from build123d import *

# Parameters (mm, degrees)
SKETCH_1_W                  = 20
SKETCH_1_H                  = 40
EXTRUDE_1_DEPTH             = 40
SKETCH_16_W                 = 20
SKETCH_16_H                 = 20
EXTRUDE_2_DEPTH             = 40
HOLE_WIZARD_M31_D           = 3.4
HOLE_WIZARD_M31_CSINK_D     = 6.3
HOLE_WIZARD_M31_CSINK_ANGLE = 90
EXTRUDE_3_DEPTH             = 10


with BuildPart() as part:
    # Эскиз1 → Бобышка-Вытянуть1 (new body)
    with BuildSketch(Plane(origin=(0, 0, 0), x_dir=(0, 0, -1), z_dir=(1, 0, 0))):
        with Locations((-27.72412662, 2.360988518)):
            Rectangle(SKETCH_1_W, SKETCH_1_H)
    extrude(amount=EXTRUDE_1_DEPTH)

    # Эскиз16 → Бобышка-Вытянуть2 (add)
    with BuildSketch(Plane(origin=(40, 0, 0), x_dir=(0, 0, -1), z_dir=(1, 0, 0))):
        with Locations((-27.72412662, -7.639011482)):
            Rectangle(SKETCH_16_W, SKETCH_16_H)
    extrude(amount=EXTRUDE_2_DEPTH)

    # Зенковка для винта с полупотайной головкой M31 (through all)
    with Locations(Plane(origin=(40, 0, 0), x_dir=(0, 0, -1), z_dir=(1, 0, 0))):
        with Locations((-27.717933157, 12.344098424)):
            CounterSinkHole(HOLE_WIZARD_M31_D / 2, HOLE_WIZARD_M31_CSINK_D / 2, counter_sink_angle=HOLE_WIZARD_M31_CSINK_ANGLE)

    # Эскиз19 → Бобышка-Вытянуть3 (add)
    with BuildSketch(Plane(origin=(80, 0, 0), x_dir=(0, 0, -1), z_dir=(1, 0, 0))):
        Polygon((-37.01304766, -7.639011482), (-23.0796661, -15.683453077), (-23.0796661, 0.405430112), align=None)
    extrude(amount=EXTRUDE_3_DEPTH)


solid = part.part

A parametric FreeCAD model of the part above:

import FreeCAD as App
import Part
import Sketcher
Q = App.Units.Quantity


def add_polygon(sketch, points):
    """Adds a closed chain of lines whose ends are joined by coincident constraints."""
    first, n = sketch.GeometryCount, len(points)
    for a, b in zip(points, points[1:] + points[:1]):
        sketch.addGeometry(Part.LineSegment(App.Vector(*a, 0), App.Vector(*b, 0)), False)
    for i in range(n):
        sketch.addConstraint(Sketcher.Constraint("Coincident", first + i, 2, first + (i + 1) % n, 1))

doc = App.newDocument("Part")
body = doc.addObject("PartDesign::Body", "Body")

# Sketch on YZ plane
sketch1 = body.newObject("Sketcher::SketchObject", "Sketch")
sketch1.AttachmentSupport = (doc.getObject("YZ_Plane"), [""])
sketch1.MapMode = "FlatFace"
add_polygon(sketch1, [(22, 38), (-18, 38), (-18, 18), (22, 18)])  # lines 0-3
sketch1.addConstraint([
    Sketcher.Constraint("Horizontal", 0),
    Sketcher.Constraint("Vertical", 1),
    Sketcher.Constraint("Horizontal", 2),
    Sketcher.Constraint("Vertical", 3),
    Sketcher.Constraint("DistanceX", 0, 2, 0, 1, Q("40 mm")),
    Sketcher.Constraint("DistanceY", 1, 2, 1, 1, Q("20 mm")),
    Sketcher.Constraint("DistanceX", 0, 2, -1, 1, Q("17.639011 mm")),
    Sketcher.Constraint("DistanceY", -1, 1, 0, 2, Q("37.724127 mm")),
])
pad1 = body.newObject("PartDesign::Pad", "Pad")
pad1.Profile = sketch1
pad1.Length = 40

# Sketch on YZ plane
sketch2 = body.newObject("Sketcher::SketchObject", "Sketch001")
sketch2.AttachmentSupport = (doc.getObject("YZ_Plane"), [""])
sketch2.MapMode = "FlatFace"
sketch2.AttachmentOffset = App.Placement(App.Vector(0, 0, 40), App.Rotation())
add_polygon(sketch2, [(2, 38), (-18, 38), (-18, 18), (2, 18)])  # lines 0-3
sketch2.addConstraint([
    Sketcher.Constraint("Horizontal", 0),
    Sketcher.Constraint("Vertical", 1),
    Sketcher.Constraint("Horizontal", 2),
    Sketcher.Constraint("Vertical", 3),
    Sketcher.Constraint("Equal", 2, 1),
    Sketcher.Constraint("DistanceX", 0, 2, 0, 1, Q("20 mm")),
    Sketcher.Constraint("DistanceX", 0, 2, -1, 1, Q("17.639011 mm")),
    Sketcher.Constraint("DistanceY", -1, 1, 0, 2, Q("37.724127 mm")),
])
pad2 = body.newObject("PartDesign::Pad", "Pad001")
pad2.Profile = sketch2
pad2.Length = 40

# Sketch on YZ plane
sketch3 = body.newObject("Sketcher::SketchObject", "Sketch002")
sketch3.AttachmentSupport = (doc.getObject("YZ_Plane"), [""])
sketch3.MapMode = "FlatFace"
sketch3.AttachmentOffset = App.Placement(App.Vector(0, 0, 40), App.Rotation())
sketch3.addGeometry(Part.Circle(App.Vector(12.3, 27.7, 0), App.Vector(0, 0, 1), 1.7), False)
sketch3.addConstraint([
    Sketcher.Constraint("Diameter", 0, Q("3.4 mm")),
    Sketcher.Constraint("DistanceX", -1, 1, 0, 3, Q("12.344098 mm")),
    Sketcher.Constraint("DistanceY", -1, 1, 0, 3, Q("27.717933 mm")),
])
doc.recompute()
hole = body.newObject("PartDesign::Hole", "Hole")
hole.Profile = sketch3
hole.ThreadType = "None"
hole.Diameter = 3.4
hole.DepthType = "ThroughAll"
hole.HoleCutType = "Countersink"
hole.HoleCutDiameter = 6.3
hole.HoleCutCountersinkAngle = 90

# Sketch on YZ plane
sketch4 = body.newObject("Sketcher::SketchObject", "Sketch003")
sketch4.AttachmentSupport = (doc.getObject("YZ_Plane"), [""])
sketch4.MapMode = "FlatFace"
sketch4.AttachmentOffset = App.Placement(App.Vector(0, 0, 80), App.Rotation())
add_polygon(sketch4, [(-8, 37), (-16, 23), (0, 23)])  # lines 0-2
sketch4.addConstraint([
    Sketcher.Constraint("Horizontal", 1),
    Sketcher.Constraint("Equal", 0, 2),
    Sketcher.Constraint("Angle", 0, Q("-120 deg")),
    Sketcher.Constraint("DistanceX", 1, 1, 1, 2, Q("16.088883 mm")),
    Sketcher.Constraint("DistanceX", -1, 1, 1, 2, Q("0.40543 mm")),
    Sketcher.Constraint("DistanceY", -1, 1, 0, 2, Q("23.079666 mm")),
])
pad3 = body.newObject("PartDesign::Pad", "Pad002")
pad3.Profile = sketch4
pad3.Length = 10

doc.recompute()
